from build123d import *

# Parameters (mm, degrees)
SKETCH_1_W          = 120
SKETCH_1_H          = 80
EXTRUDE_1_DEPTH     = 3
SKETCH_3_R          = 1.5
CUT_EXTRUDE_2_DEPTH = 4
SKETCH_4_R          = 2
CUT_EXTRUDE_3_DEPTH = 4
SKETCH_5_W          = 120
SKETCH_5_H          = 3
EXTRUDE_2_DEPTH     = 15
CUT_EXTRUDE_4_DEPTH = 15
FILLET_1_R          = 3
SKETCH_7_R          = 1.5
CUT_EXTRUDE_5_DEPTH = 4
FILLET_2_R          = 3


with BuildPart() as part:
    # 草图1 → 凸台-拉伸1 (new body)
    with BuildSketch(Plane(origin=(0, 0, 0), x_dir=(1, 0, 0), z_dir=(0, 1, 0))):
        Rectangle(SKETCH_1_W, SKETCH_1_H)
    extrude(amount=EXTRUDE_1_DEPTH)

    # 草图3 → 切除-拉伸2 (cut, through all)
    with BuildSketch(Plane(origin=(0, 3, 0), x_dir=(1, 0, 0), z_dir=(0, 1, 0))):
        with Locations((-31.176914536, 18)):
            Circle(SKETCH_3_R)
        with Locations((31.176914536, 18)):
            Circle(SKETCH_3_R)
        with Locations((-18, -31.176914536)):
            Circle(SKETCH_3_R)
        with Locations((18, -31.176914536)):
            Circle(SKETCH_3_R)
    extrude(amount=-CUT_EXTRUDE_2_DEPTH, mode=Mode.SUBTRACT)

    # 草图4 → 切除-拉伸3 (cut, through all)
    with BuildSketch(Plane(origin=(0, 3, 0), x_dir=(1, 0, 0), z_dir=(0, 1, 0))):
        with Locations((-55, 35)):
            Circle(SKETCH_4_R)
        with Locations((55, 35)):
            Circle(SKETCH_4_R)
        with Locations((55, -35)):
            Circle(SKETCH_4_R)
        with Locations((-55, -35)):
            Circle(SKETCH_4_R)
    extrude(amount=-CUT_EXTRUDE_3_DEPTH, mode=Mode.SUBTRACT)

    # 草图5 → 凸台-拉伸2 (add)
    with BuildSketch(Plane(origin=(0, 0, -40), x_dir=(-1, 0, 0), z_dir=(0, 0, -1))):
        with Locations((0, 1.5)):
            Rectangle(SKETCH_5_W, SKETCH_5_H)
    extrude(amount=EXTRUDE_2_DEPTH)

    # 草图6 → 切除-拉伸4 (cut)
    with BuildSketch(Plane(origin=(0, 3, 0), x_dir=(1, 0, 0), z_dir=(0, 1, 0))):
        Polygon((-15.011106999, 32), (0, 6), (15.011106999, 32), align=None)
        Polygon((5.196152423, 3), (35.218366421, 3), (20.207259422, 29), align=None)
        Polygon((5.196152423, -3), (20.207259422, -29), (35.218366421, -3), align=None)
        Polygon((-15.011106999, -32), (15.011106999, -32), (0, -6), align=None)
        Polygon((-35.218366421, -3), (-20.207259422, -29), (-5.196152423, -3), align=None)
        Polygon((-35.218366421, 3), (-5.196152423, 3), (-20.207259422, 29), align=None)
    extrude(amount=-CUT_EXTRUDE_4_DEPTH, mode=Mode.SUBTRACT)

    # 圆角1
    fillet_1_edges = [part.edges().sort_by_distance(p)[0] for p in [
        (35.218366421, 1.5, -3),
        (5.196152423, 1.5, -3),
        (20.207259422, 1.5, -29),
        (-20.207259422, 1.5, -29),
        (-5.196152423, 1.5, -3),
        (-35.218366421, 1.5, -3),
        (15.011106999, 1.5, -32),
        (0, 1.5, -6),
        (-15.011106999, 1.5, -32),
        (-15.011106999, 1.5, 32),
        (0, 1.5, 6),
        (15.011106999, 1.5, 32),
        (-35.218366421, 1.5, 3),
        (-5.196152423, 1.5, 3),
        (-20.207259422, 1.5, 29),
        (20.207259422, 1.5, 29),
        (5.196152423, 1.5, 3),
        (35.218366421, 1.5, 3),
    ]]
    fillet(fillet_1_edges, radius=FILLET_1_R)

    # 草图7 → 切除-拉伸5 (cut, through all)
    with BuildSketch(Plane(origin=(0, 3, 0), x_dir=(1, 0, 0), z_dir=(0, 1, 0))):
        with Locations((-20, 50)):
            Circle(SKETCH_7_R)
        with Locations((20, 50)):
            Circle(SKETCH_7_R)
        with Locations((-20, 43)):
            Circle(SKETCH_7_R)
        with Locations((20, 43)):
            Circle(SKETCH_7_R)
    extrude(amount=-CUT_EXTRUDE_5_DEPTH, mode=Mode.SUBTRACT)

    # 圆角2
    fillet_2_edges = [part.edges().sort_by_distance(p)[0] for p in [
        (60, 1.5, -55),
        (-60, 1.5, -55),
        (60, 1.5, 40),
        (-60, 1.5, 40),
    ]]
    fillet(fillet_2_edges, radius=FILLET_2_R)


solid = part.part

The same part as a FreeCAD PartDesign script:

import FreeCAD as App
import Part
import Sketcher

V = App.Vector
Q = App.Units.Quantity


def edges_at(feature, points):
    """Names of the edges that pass closest to the given points."""
    edges = feature.Shape.Edges
    near = lambda p: min(range(len(edges)), key=lambda i: edges[i].distToShape(Part.Vertex(*p))[0])
    return sorted({f"Edge{near(p) + 1}" for p in points})

doc = App.newDocument("Part")
body = doc.addObject("PartDesign::Body", "Body")

sketch1 = doc.addObject("Sketcher::SketchObject", "Sketch")
body.addObject(sketch1)
sketch1.AttachmentSupport = (doc.XZ_Plane, [""])
sketch1.MapMode = "FlatFace"
sketch1.addGeometry([
    Part.LineSegment(V(-60, -40, 0), V(-60, 40, 0)),
    Part.LineSegment(V(-60, 40, 0), V(60, 40, 0)),
    Part.LineSegment(V(60, 40, 0), V(60, -40, 0)),
    Part.LineSegment(V(60, -40, 0), V(-60, -40, 0)),
], False)
sketch1.addConstraint([
    Sketcher.Constraint("Coincident", 0, 2, 1, 1),
    Sketcher.Constraint("Coincident", 1, 2, 2, 1),
    Sketcher.Constraint("Coincident", 2, 2, 3, 1),
    Sketcher.Constraint("Coincident", 3, 2, 0, 1),
    Sketcher.Constraint("Vertical", 0),
    Sketcher.Constraint("Horizontal", 1),
    Sketcher.Constraint("Vertical", 2),
    Sketcher.Constraint("Horizontal", 3),
    Sketcher.Constraint("Symmetric", 0, 2, 2, 2, -1, 1),
    Sketcher.Constraint("DistanceX", 1, 1, 1, 2, 120.0),
    Sketcher.Constraint("DistanceY", 0, 1, 0, 2, 80.0),
])
pad1 = doc.addObject("PartDesign::Pad", "Pad")
body.addObject(pad1)
pad1.Profile = sketch1
pad1.Length = 3
pad1.Reversed = True

sketch2 = doc.addObject("Sketcher::SketchObject", "Sketch001")
body.addObject(sketch2)
sketch2.AttachmentSupport = (doc.XZ_Plane, [""])
sketch2.MapMode = "FlatFace"
sketch2.AttachmentOffset = App.Placement(V(0, 0, -3), App.Rotation())
sketch2.addGeometry([
    Part.Circle(V(-31.2, -18, 0), V(0, 0, 1), 1.5),
    Part.Circle(V(31.2, -18, 0), V(0, 0, 1), 1.5),
    Part.Circle(V(-18, 31.2, 0), V(0, 0, 1), 1.5),
    Part.Circle(V(18, 31.2, 0), V(0, 0, 1), 1.5),
], False)
sketch2.addConstraint([
    Sketcher.Constraint("Equal", 0, 1),
    Sketcher.Constraint("Equal", 1, 2),
    Sketcher.Constraint("Equal", 2, 3),
    Sketcher.Constraint("Symmetric", 0, 3, 1, 3, -2),
    Sketcher.Constraint("Symmetric", 2, 3, 3, 3, -2),
    Sketcher.Constraint("Diameter", 0, 3.0),
    Sketcher.Constraint("DistanceY", 0, 3, -1, 1, 18.0),
    Sketcher.Constraint("DistanceX", 2, 3, -1, 1, 18.0),
    Sketcher.Constraint("DistanceX", 0, 3, 1, 3, 62.353829),
    Sketcher.Constraint("DistanceY", -1, 1, 2, 3, 31.176915),
])
pocket1 = doc.addObject("PartDesign::Pocket", "Pocket")
body.addObject(pocket1)
pocket1.Profile = sketch2
pocket1.Type = "ThroughAll"
pocket1.Reversed = True

sketch3 = doc.addObject("Sketcher::SketchObject", "Sketch002")
body.addObject(sketch3)
sketch3.AttachmentSupport = (doc.XZ_Plane, [""])
sketch3.MapMode = "FlatFace"
sketch3.AttachmentOffset = App.Placement(V(0, 0, -3), App.Rotation())
sketch3.addGeometry([
    Part.Circle(V(-55, -35, 0), V(0, 0, 1), 2),
    Part.Circle(V(55, -35, 0), V(0, 0, 1), 2),
    Part.Circle(V(55, 35, 0), V(0, 0, 1), 2),
    Part.Circle(V(-55, 35, 0), V(0, 0, 1), 2),
], False)
sketch3.addConstraint([
    Sketcher.Constraint("Equal", 0, 1),
    Sketcher.Constraint("Equal", 1, 2),
    Sketcher.Constraint("Equal", 2, 3),
    Sketcher.Constraint("Symmetric", 0, 3, 2, 3, -1, 1),
    Sketcher.Constraint("Symmetric", 1, 3, 3, 3, -1, 1),
    Sketcher.Constraint("Symmetric", 0, 3, 1, 3, -2),
    Sketcher.Constraint("Diameter", 0, 4.0),
    Sketcher.Constraint("DistanceX", 0, 3, -1, 1, 55.0),
    Sketcher.Constraint("DistanceY", 0, 3, -1, 1, 35.0),
])
pocket2 = doc.addObject("PartDesign::Pocket", "Pocket001")
body.addObject(pocket2)
pocket2.Profile = sketch3
pocket2.Type = "ThroughAll"
pocket2.Reversed = True

sketch4 = doc.addObject("Sketcher::SketchObject", "Sketch003")
body.addObject(sketch4)
sketch4.AttachmentSupport = (doc.XY_Plane, [""])
sketch4.MapMode = "FlatFace"
sketch4.AttachmentOffset = App.Placement(V(0, 0, -40), App.Rotation())
sketch4.addGeometry([
    Part.LineSegment(V(60, 3, 0), V(60, 0, 0)),
    Part.LineSegment(V(60, 0, 0), V(-60, 0, 0)),
    Part.LineSegment(V(-60, 0, 0), V(-60, 3, 0)),
    Part.LineSegment(V(-60, 3, 0), V(60, 3, 0)),
], False)
sketch4.addConstraint([
    Sketcher.Constraint("Coincident", 0, 2, 1, 1),
    Sketcher.Constraint("Coincident", 1, 2, 2, 1),
    Sketcher.Constraint("Coincident", 2, 2, 3, 1),
    Sketcher.Constraint("Coincident", 3, 2, 0, 1),
    Sketcher.Constraint("Vertical", 0),
    Sketcher.Constraint("Horizontal", 1),
    Sketcher.Constraint("Vertical", 2),
    Sketcher.Constraint("Horizontal", 3),
    Sketcher.Constraint("Symmetric", 0, 2, 1, 2, -1, 1),
    Sketcher.Constraint("DistanceX", 1, 2, 1, 1, 120.0),
    Sketcher.Constraint("DistanceY", 0, 2, 0, 1, 3.0),
])
pad2 = doc.addObject("PartDesign::Pad", "Pad001")
body.addObject(pad2)
pad2.Profile = sketch4
pad2.Length = 15
pad2.Reversed = True

sketch5 = doc.addObject("Sketcher::SketchObject", "Sketch004")
body.addObject(sketch5)
sketch5.AttachmentSupport = (doc.XZ_Plane, [""])
sketch5.MapMode = "FlatFace"
sketch5.AttachmentOffset = App.Placement(V(0, 0, -3), App.Rotation())
sketch5.addGeometry([
    Part.LineSegment(V(-15, -32, 0), V(0, -6, 0)),
    Part.LineSegment(V(0, -6, 0), V(15, -32, 0)),
    Part.LineSegment(V(15, -32, 0), V(-15, -32, 0)),
    Part.LineSegment(V(5, -3, 0), V(35, -3, 0)),
    Part.LineSegment(V(35, -3, 0), V(20, -29, 0)),
    Part.LineSegment(V(20, -29, 0), V(5, -3, 0)),
    Part.LineSegment(V(5, 3, 0), V(20, 29, 0)),
    Part.LineSegment(V(20, 29, 0), V(35, 3, 0)),
    Part.LineSegment(V(35, 3, 0), V(5, 3, 0)),
    Part.LineSegment(V(-15, 32, 0), V(15, 32, 0)),
    Part.LineSegment(V(15, 32, 0), V(0, 6, 0)),
    Part.LineSegment(V(0, 6, 0), V(-15, 32, 0)),
    Part.LineSegment(V(-35, 3, 0), V(-20, 29, 0)),
    Part.LineSegment(V(-20, 29, 0), V(-5, 3, 0)),
    Part.LineSegment(V(-5, 3, 0), V(-35, 3, 0)),
    Part.LineSegment(V(-35, -3, 0), V(-5, -3, 0)),
    Part.LineSegment(V(-5, -3, 0), V(-20, -29, 0)),
    Part.LineSegment(V(-20, -29, 0), V(-35, -3, 0)),
], False)
sketch5.addConstraint([
    Sketcher.Constraint("Coincident", 0, 2, 1, 1),
    Sketcher.Constraint("Coincident", 1, 2, 2, 1),
    Sketcher.Constraint("Coincident", 2, 2, 0, 1),
    Sketcher.Constraint("Coincident", 3, 2, 4, 1),
    Sketcher.Constraint("Coincident", 4, 2, 5, 1),
    Sketcher.Constraint("Coincident", 5, 2, 3, 1),
    Sketcher.Constraint("Coincident", 6, 2, 7, 1),
    Sketcher.Constraint("Coincident", 7, 2, 8, 1),
    Sketcher.Constraint("Coincident", 8, 2, 6, 1),
    Sketcher.Constraint("Coincident", 9, 2, 10, 1),
    Sketcher.Constraint("Coincident", 10, 2, 11, 1),
    Sketcher.Constraint("Coincident", 11, 2, 9, 1),
    Sketcher.Constraint("Coincident", 12, 2, 13, 1),
    Sketcher.Constraint("Coincident", 13, 2, 14, 1),
    Sketcher.Constraint("Coincident", 14, 2, 12, 1),
    Sketcher.Constraint("Coincident", 15, 2, 16, 1),
    Sketcher.Constraint("Coincident", 16, 2, 17, 1),
    Sketcher.Constraint("Coincident", 17, 2, 15, 1),
    Sketcher.Constraint("Horizontal", 2),
    Sketcher.Constraint("Horizontal", 3),
    Sketcher.Constraint("Horizontal", 8),
    Sketcher.Constraint("Horizontal", 9),
    Sketcher.Constraint("Horizontal", 14),
    Sketcher.Constraint("Horizontal", 15),
    Sketcher.Constraint("Symmetric", 2, 2, 9, 2, -1, 1),
    Sketcher.Constraint("Symmetric", 0, 2, 10, 2, -1, 1),
    Sketcher.Constraint("Symmetric", 4, 2, 12, 2, -1, 1),
    Sketcher.Constraint("Symmetric", 5, 2, 13, 2, -1, 1),
    Sketcher.Constraint("Symmetric", 8, 2, 15, 2, -1, 1),
    Sketcher.Constraint("Symmetric", 6, 2, 16, 2, -1, 1),
    Sketcher.Constraint("Symmetric", 6, 2, 12, 2, -2),
    Sketcher.Constraint("Symmetric", 8, 2, 13, 2, -2),
    Sketcher.Constraint("PointOnObject", 0, 2, -2),
    Sketcher.Constraint("Parallel", 0, 4),
    Sketcher.Constraint("Parallel", 1, 5),
    Sketcher.Constraint("Parallel", 4, 6),
    Sketcher.Constraint("Parallel", 5, 7),
    Sketcher.Constraint("Parallel", 7, 11),
    Sketcher.Constraint("Parallel", 10, 12),
    Sketcher.Constraint("Parallel", 13, 17),
    Sketcher.Constraint("Equal", 2, 3),
    Sketcher.Constraint("Angle", 0, Q("60 deg")),
    Sketcher.Constraint("DistanceY", 0, 2, -1, 1, 6.0),
    Sketcher.Constraint("DistanceY", 1, 2, -1, 1, 32.0),
    Sketcher.Constraint("DistanceY", 3, 2, -1, 1, 3.0),
    Sketcher.Constraint("DistanceX", -1, 1, 4, 2, 20.207259),
])
pocket3 = doc.addObject("PartDesign::Pocket", "Pocket002")
body.addObject(pocket3)
pocket3.Profile = sketch5
pocket3.Length = 15
pocket3.Reversed = True
doc.recompute()

fillet = doc.addObject("PartDesign::Fillet", "Fillet")
body.addObject(fillet)
fillet.Base = (pocket3, edges_at(pocket3, [
    (35.218, 1.5, -3),
    (5.196, 1.5, -3),
    (20.207, 1.5, -29),
    (-20.207, 1.5, -29),
    (-5.196, 1.5, -3),
    (-35.218, 1.5, -3),
    (15.011, 1.5, -32),
    (0, 1.5, -6),
    (-15.011, 1.5, -32),
    (-15.011, 1.5, 32),
    (0, 1.5, 6),
    (15.011, 1.5, 32),
    (-35.218, 1.5, 3),
    (-5.196, 1.5, 3),
    (-20.207, 1.5, 29),
    (20.207, 1.5, 29),
    (5.196, 1.5, 3),
    (35.218, 1.5, 3),
]))
fillet.Radius = 3

sketch6 = doc.addObject("Sketcher::SketchObject", "Sketch005")
body.addObject(sketch6)
sketch6.AttachmentSupport = (doc.XZ_Plane, [""])
sketch6.MapMode = "FlatFace"
sketch6.AttachmentOffset = App.Placement(V(0, 0, -3), App.Rotation())
sketch6.addGeometry([
    Part.Circle(V(-20, -50, 0), V(0, 0, 1), 1.5),
    Part.Circle(V(20, -50, 0), V(0, 0, 1), 1.5),
    Part.Circle(V(-20, -43, 0), V(0, 0, 1), 1.5),
    Part.Circle(V(20, -43, 0), V(0, 0, 1), 1.5),
], False)
sketch6.addConstraint([
    Sketcher.Constraint("Equal", 0, 1),
    Sketcher.Constraint("Equal", 1, 2),
    Sketcher.Constraint("Equal", 2, 3),
    Sketcher.Constraint("Symmetric", 0, 3, 1, 3, -2),
    Sketcher.Constraint("Symmetric", 2, 3, 3, 3, -2),
    Sketcher.Constraint("Vertical", 0, 3, 2, 3),
    Sketcher.Constraint("Diameter", 0, 3.0),
    Sketcher.Constraint("DistanceX", 0, 3, -1, 1, 20.0),
    Sketcher.Constraint("DistanceY", 0, 3, -1, 1, 50.0),
    Sketcher.Constraint("DistanceY", 2, 3, -1, 1, 43.0),
])
pocket4 = doc.addObject("PartDesign::Pocket", "Pocket003")
body.addObject(pocket4)
pocket4.Profile = sketch6
pocket4.Type = "ThroughAll"
pocket4.Reversed = True
doc.recompute()

fillet2 = doc.addObject("PartDesign::Fillet", "Fillet001")
body.addObject(fillet2)
fillet2.Base = (pocket4, edges_at(pocket4, [
    (60, 1.5, -55),
    (-60, 1.5, -55),
    (60, 1.5, 40),
    (-60, 1.5, 40),
]))
fillet2.Radius = 3

doc.recompute()
